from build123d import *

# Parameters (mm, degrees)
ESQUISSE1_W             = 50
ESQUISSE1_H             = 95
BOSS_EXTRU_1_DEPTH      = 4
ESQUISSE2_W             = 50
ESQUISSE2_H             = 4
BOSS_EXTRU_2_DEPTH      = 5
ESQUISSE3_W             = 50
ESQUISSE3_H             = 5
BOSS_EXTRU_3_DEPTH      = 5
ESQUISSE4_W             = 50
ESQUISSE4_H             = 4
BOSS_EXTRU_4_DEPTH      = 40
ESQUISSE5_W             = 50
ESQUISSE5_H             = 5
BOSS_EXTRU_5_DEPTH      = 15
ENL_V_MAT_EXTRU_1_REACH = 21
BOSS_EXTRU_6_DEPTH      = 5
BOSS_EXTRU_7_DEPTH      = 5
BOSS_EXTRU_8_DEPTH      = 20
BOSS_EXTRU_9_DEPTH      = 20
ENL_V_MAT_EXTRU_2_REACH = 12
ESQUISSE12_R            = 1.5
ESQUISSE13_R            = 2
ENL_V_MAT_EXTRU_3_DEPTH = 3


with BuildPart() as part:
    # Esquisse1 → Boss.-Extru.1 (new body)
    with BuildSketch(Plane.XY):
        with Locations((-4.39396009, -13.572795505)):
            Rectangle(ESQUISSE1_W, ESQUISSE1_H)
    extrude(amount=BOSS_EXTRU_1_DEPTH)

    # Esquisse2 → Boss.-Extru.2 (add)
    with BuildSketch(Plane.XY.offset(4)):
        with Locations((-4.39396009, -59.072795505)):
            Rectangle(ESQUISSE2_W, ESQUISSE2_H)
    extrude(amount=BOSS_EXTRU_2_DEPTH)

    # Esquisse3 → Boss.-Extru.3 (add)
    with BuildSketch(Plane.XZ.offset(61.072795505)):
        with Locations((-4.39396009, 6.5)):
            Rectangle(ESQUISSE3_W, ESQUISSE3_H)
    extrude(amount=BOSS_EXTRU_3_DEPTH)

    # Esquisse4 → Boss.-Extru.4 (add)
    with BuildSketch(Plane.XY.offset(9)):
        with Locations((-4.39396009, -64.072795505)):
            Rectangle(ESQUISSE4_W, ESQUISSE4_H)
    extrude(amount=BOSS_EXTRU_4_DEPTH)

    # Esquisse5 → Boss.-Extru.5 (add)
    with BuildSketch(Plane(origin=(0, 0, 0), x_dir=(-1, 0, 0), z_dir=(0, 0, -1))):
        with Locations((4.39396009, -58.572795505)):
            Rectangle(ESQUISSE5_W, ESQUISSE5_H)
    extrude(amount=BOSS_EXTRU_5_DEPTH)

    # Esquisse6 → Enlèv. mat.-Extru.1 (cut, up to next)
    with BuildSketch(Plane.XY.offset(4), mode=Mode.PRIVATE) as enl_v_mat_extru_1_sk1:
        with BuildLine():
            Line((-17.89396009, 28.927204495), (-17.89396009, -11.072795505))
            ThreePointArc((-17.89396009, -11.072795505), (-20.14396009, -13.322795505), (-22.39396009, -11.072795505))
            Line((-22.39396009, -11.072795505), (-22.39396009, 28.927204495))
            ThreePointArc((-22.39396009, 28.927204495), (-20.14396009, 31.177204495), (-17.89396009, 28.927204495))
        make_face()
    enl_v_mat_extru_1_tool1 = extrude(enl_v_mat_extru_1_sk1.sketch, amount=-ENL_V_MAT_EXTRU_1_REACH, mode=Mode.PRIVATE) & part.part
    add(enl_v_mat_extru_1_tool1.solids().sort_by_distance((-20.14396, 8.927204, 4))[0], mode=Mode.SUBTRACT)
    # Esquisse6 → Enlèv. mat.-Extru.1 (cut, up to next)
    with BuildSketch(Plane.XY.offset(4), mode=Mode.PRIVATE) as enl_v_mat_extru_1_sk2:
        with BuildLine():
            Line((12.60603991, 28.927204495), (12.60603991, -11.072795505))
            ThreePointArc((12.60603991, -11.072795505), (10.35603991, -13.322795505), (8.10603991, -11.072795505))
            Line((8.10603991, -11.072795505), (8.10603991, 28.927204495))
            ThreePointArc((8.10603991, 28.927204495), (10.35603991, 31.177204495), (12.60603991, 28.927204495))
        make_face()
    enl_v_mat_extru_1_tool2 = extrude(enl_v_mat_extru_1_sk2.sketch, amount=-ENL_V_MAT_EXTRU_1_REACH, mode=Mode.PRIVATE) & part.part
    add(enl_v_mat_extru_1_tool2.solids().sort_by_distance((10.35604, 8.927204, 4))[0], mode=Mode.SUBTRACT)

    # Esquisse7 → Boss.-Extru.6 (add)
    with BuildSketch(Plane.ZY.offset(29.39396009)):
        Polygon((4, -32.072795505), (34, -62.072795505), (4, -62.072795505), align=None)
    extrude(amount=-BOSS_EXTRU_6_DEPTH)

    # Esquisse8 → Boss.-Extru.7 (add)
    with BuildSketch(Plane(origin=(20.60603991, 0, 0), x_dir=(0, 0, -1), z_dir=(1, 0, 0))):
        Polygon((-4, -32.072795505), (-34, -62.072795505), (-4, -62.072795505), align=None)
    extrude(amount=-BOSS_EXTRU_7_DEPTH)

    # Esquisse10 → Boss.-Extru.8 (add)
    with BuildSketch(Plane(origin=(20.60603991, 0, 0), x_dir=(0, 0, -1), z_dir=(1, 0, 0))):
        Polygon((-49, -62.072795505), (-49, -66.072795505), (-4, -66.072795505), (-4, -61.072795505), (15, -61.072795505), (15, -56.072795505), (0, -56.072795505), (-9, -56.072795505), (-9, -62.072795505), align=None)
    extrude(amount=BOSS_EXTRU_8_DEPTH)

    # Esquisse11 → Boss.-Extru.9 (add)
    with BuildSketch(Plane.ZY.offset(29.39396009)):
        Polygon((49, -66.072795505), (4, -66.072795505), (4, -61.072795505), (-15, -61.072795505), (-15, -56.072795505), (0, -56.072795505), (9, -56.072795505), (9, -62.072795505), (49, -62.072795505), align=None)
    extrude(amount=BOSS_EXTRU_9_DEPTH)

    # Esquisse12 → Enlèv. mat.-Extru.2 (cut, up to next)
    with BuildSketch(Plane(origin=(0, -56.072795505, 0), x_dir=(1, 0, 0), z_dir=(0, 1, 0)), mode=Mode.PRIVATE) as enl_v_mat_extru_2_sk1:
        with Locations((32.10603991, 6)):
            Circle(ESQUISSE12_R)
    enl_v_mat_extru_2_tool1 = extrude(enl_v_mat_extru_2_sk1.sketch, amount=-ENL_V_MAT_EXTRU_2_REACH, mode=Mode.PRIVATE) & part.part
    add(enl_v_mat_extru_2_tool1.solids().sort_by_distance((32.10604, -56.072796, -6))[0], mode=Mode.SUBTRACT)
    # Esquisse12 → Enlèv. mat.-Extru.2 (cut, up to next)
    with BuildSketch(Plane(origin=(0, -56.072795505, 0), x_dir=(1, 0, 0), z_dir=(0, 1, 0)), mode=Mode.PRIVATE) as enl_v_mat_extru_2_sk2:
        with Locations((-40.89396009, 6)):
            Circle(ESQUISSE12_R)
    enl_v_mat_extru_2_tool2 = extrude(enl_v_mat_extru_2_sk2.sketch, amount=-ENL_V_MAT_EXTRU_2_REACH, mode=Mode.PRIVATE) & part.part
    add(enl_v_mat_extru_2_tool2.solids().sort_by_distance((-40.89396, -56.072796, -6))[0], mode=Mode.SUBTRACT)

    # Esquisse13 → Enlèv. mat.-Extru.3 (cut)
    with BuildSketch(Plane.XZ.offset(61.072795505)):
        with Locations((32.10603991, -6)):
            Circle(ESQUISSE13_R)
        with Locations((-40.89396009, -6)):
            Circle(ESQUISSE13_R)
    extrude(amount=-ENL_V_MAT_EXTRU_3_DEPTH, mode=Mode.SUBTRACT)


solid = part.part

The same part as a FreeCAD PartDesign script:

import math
import FreeCAD as App
import Part
import Sketcher
from FreeCAD import Vector


def add_polygon(sketch, points):
    """Adds a closed chain of lines whose ends are joined by coincident constraints."""
    first, n = sketch.GeometryCount, len(points)
    for a, b in zip(points, points[1:] + points[:1]):
        sketch.addGeometry(Part.LineSegment(App.Vector(*a, 0), App.Vector(*b, 0)), False)
    for i in range(n):
        sketch.addConstraint(Sketcher.Constraint("Coincident", first + i, 2, first + (i + 1) % n, 1))

doc = App.newDocument("Part")
body = doc.addObject("PartDesign::Body", "Body")

# Sketch on XY plane
sketch1 = body.newObject("Sketcher::SketchObject", "Sketch")
sketch1.AttachmentSupport = (doc.getObject("XY_Plane"), [""])
sketch1.MapMode = "FlatFace"
add_polygon(sketch1, [(-29, 34), (-29, -61), (21, -61), (21, 34)])  # lines 0-3
sketch1.addConstraint([
    Sketcher.Constraint("Vertical", 0),
    Sketcher.Constraint("Horizontal", 1),
    Sketcher.Constraint("Vertical", 2),
    Sketcher.Constraint("Horizontal", 3),
    Sketcher.Constraint("DistanceX", 1, 1, 1, 2, 50.0),
    Sketcher.Constraint("DistanceY", 0, 2, 0, 1, 95.0),
    Sketcher.Constraint("DistanceX", 0, 2, -1, 1, 29.39396),
    Sketcher.Constraint("DistanceY", 0, 2, -1, 1, 61.072796),
])
pad1 = body.newObject("PartDesign::Pad", "Pad")
pad1.Profile = sketch1
pad1.Length = 4

# Sketch on XY plane
sketch2 = body.newObject("Sketcher::SketchObject", "Sketch001")
sketch2.AttachmentSupport = (doc.getObject("XY_Plane"), [""])
sketch2.MapMode = "FlatFace"
sketch2.AttachmentOffset = App.Placement(Vector(0, 0, 4), App.Rotation())
add_polygon(sketch2, [(-29.4, -57.1), (-29.4, -61.1), (20.6, -61.1), (20.6, -57.1)])  # lines 0-3
sketch2.addConstraint([
    Sketcher.Constraint("Vertical", 0),
    Sketcher.Constraint("Horizontal", 1),
    Sketcher.Constraint("Vertical", 2),
    Sketcher.Constraint("Horizontal", 3),
    Sketcher.Constraint("DistanceX", 1, 1, 1, 2, 50.0),
    Sketcher.Constraint("DistanceY", 0, 2, 0, 1, 4.0),
    Sketcher.Constraint("DistanceX", 0, 2, -1, 1, 29.39396),
    Sketcher.Constraint("DistanceY", 0, 2, -1, 1, 61.072796),
])
pad2 = body.newObject("PartDesign::Pad", "Pad001")
pad2.Profile = sketch2
pad2.Length = 5

# Sketch on XZ plane
sketch3 = body.newObject("Sketcher::SketchObject", "Sketch002")
sketch3.AttachmentSupport = (doc.getObject("XZ_Plane"), [""])
sketch3.MapMode = "FlatFace"
sketch3.AttachmentOffset = App.Placement(Vector(0, 0, 61.072796), App.Rotation())
add_polygon(sketch3, [(-29, 9), (-29, 4), (21, 4), (21, 9)])  # lines 0-3
sketch3.addConstraint([
    Sketcher.Constraint("Vertical", 0),
    Sketcher.Constraint("Horizontal", 1),
    Sketcher.Constraint("Vertical", 2),
    Sketcher.Constraint("Horizontal", 3),
    Sketcher.Constraint("DistanceX", 1, 1, 1, 2, 50.0),
    Sketcher.Constraint("DistanceY", 0, 2, 0, 1, 5.0),
    Sketcher.Constraint("DistanceY", -1, 1, 0, 2, 4.0),
    Sketcher.Constraint("DistanceX", 0, 2, -1, 1, 29.39396),
])
pad3 = body.newObject("PartDesign::Pad", "Pad002")
pad3.Profile = sketch3
pad3.Length = 5

# Sketch on XY plane
sketch4 = body.newObject("Sketcher::SketchObject", "Sketch003")
sketch4.AttachmentSupport = (doc.getObject("XY_Plane"), [""])
sketch4.MapMode = "FlatFace"
sketch4.AttachmentOffset = App.Placement(Vector(0, 0, 9), App.Rotation())
add_polygon(sketch4, [(-29.4, -62.1), (-29.4, -66.1), (20.6, -66.1), (20.6, -62.1)])  # lines 0-3
sketch4.addConstraint([
    Sketcher.Constraint("Vertical", 0),
    Sketcher.Constraint("Horizontal", 1),
    Sketcher.Constraint("Vertical", 2),
    Sketcher.Constraint("Horizontal", 3),
    Sketcher.Constraint("DistanceX", 1, 1, 1, 2, 50.0),
    Sketcher.Constraint("DistanceY", 0, 2, 0, 1, 4.0),
    Sketcher.Constraint("DistanceX", 0, 2, -1, 1, 29.39396),
    Sketcher.Constraint("DistanceY", 0, 2, -1, 1, 66.072796),
])
pad4 = body.newObject("PartDesign::Pad", "Pad003")
pad4.Profile = sketch4
pad4.Length = 40

# Sketch on XY plane
sketch5 = body.newObject("Sketcher::SketchObject", "Sketch004")
sketch5.AttachmentSupport = (doc.getObject("XY_Plane"), [""])
sketch5.MapMode = "FlatFace"
add_polygon(sketch5, [(21, -56), (21, -61), (-29, -61), (-29, -56)])  # lines 0-3
sketch5.addConstraint([
    Sketcher.Constraint("Vertical", 0),
    Sketcher.Constraint("Horizontal", 1),
    Sketcher.Constraint("Vertical", 2),
    Sketcher.Constraint("Horizontal", 3),
    Sketcher.Constraint("DistanceX", 1, 2, 1, 1, 50.0),
    Sketcher.Constraint("DistanceY", 0, 2, 0, 1, 5.0),
    Sketcher.Constraint("DistanceX", -1, 1, 0, 2, 20.60604),
    Sketcher.Constraint("DistanceY", 0, 2, -1, 1, 61.072796),
])
pad5 = body.newObject("PartDesign::Pad", "Pad004")
pad5.Profile = sketch5
pad5.Length = 15
pad5.Reversed = True

# Sketch on XY plane
sketch6 = body.newObject("Sketcher::SketchObject", "Sketch005")
sketch6.AttachmentSupport = (doc.getObject("XY_Plane"), [""])
sketch6.MapMode = "FlatFace"
sketch6.AttachmentOffset = App.Placement(Vector(0, 0, 4), App.Rotation())
sketch6.addGeometry([
    Part.LineSegment(Vector(-17.9, -11.1, 0), Vector(-17.9, 28.9, 0)),
    Part.ArcOfCircle(Part.Circle(Vector(-20.1, 28.9, 0), Vector(0, 0, 1), 2.2), math.radians(0), math.radians(180)),
    Part.LineSegment(Vector(-22.4, 28.9, 0), Vector(-22.4, -11.1, 0)),
    Part.ArcOfCircle(Part.Circle(Vector(-20.1, -11.1, 0), Vector(0, 0, 1), 2.2), math.radians(180), math.radians(360)),
], False)
sketch6.addConstraint([
    Sketcher.Constraint("Tangent", 0, 2, 1, 1),
    Sketcher.Constraint("Tangent", 1, 2, 2, 1),
    Sketcher.Constraint("Tangent", 2, 2, 3, 1),
    Sketcher.Constraint("Tangent", 3, 2, 0, 1),
    Sketcher.Constraint("Vertical", 0),
    Sketcher.Constraint("Vertical", 2),
    Sketcher.Constraint("DistanceY", 0, 1, 0, 2, 40.0),
    Sketcher.Constraint("Radius", 1, 2.25),
    Sketcher.Constraint("DistanceX", 1, 3, -1, 1, 20.14396),
    Sketcher.Constraint("DistanceY", -1, 1, 1, 3, 28.927204),
])
pocket1 = body.newObject("PartDesign::Pocket", "Pocket")
pocket1.Profile = sketch6
pocket1.Type = "UpToFirst"

# Sketch on XY plane
sketch7 = body.newObject("Sketcher::SketchObject", "Sketch006")
sketch7.AttachmentSupport = (doc.getObject("XY_Plane"), [""])
sketch7.MapMode = "FlatFace"
sketch7.AttachmentOffset = App.Placement(Vector(0, 0, 4), App.Rotation())
sketch7.addGeometry([
    Part.LineSegment(Vector(12.6, -11.1, 0), Vector(12.6, 28.9, 0)),
    Part.ArcOfCircle(Part.Circle(Vector(10.4, 28.9, 0), Vector(0, 0, 1), 2.2), math.radians(0), math.radians(180)),
    Part.LineSegment(Vector(8.1, 28.9, 0), Vector(8.1, -11.1, 0)),
    Part.ArcOfCircle(Part.Circle(Vector(10.4, -11.1, 0), Vector(0, 0, 1), 2.2), math.radians(180), math.radians(360)),
], False)
sketch7.addConstraint([
    Sketcher.Constraint("Tangent", 0, 2, 1, 1),
    Sketcher.Constraint("Tangent", 1, 2, 2, 1),
    Sketcher.Constraint("Tangent", 2, 2, 3, 1),
    Sketcher.Constraint("Tangent", 3, 2, 0, 1),
    Sketcher.Constraint("Vertical", 0),
    Sketcher.Constraint("Vertical", 2),
    Sketcher.Constraint("DistanceY", 0, 1, 0, 2, 40.0),
    Sketcher.Constraint("Radius", 1, 2.25),
    Sketcher.Constraint("DistanceX", -1, 1, 1, 3, 10.35604),
    Sketcher.Constraint("DistanceY", -1, 1, 1, 3, 28.927204),
])
pocket2 = body.newObject("PartDesign::Pocket", "Pocket001")
pocket2.Profile = sketch7
pocket2.Type = "UpToFirst"

# Sketch on YZ plane
sketch8 = body.newObject("Sketcher::SketchObject", "Sketch007")
sketch8.AttachmentSupport = (doc.getObject("YZ_Plane"), [""])
sketch8.MapMode = "FlatFace"
sketch8.AttachmentOffset = App.Placement(Vector(0, 0, -29.39396), App.Rotation())
add_polygon(sketch8, [(-62, 34), (-32, 4), (-62, 4)])  # lines 0-2
sketch8.addConstraint([
    Sketcher.Constraint("Horizontal", 1),
    Sketcher.Constraint("Vertical", 2),
    Sketcher.Constraint("Equal", 1, 2),
    Sketcher.Constraint("DistanceX", 1, 2, 1, 1, 30.0),
    Sketcher.Constraint("DistanceY", -1, 1, 0, 2, 4.0),
    Sketcher.Constraint("DistanceX", 0, 2, -1, 1, 32.072796),
])
pad6 = body.newObject("PartDesign::Pad", "Pad005")
pad6.Profile = sketch8
pad6.Length = 5

# Sketch on YZ plane
sketch9 = body.newObject("Sketcher::SketchObject", "Sketch008")
sketch9.AttachmentSupport = (doc.getObject("YZ_Plane"), [""])
sketch9.MapMode = "FlatFace"
sketch9.AttachmentOffset = App.Placement(Vector(0, 0, 20.60604), App.Rotation())
add_polygon(sketch9, [(-32, 4), (-62, 34), (-62, 4)])  # lines 0-2
sketch9.addConstraint([
    Sketcher.Constraint("Vertical", 1),
    Sketcher.Constraint("Horizontal", 2),
    Sketcher.Constraint("Equal", 2, 1),
    Sketcher.Constraint("DistanceX", 2, 1, 2, 2, 30.0),
    Sketcher.Constraint("DistanceY", -1, 1, 0, 2, 34.0),
    Sketcher.Constraint("DistanceX", 0, 2, -1, 1, 62.072796),
])
pad7 = body.newObject("PartDesign::Pad", "Pad006")
pad7.Profile = sketch9
pad7.Length = 5
pad7.Reversed = True

# Sketch on YZ plane
sketch10 = body.newObject("Sketcher::SketchObject", "Sketch009")
sketch10.AttachmentSupport = (doc.getObject("YZ_Plane"), [""])
sketch10.MapMode = "FlatFace"
sketch10.AttachmentOffset = App.Placement(Vector(0, 0, 20.60604), App.Rotation())
add_polygon(sketch10, [(-62.1, 49), (-66.1, 49), (-66.1, 4), (-61.1, 4), (-61.1, -15), (-56.1, -15), (-56.1, 9), (-62.1, 9)])  # lines 0-7
sketch10.addConstraint([
    Sketcher.Constraint("Horizontal", 0),
    Sketcher.Constraint("Vertical", 1),
    Sketcher.Constraint("Horizontal", 2),
    Sketcher.Constraint("Vertical", 3),
    Sketcher.Constraint("Horizontal", 4),
    Sketcher.Constraint("Vertical", 5),
    Sketcher.Constraint("Horizontal", 6),
    Sketcher.Constraint("Vertical", 7),
    Sketcher.Constraint("Equal", 2, 4),
    Sketcher.Constraint("DistanceX", 0, 2, 0, 1, 4.0),
    Sketcher.Constraint("DistanceX", 2, 1, 2, 2, 5.0),
    Sketcher.Constraint("DistanceY", 1, 2, 1, 1, 45.0),
    Sketcher.Constraint("DistanceY", 3, 2, 3, 1, 19.0),
    Sketcher.Constraint("DistanceY", 5, 1, 5, 2, 24.0),
    Sketcher.Constraint("DistanceY", -1, 1, 0, 2, 49.0),
    Sketcher.Constraint("DistanceX", 0, 2, -1, 1, 66.072796),
])
pad8 = body.newObject("PartDesign::Pad", "Pad007")
pad8.Profile = sketch10
pad8.Length = 20

# Sketch on YZ plane
sketch11 = body.newObject("Sketcher::SketchObject", "Sketch010")
sketch11.AttachmentSupport = (doc.getObject("YZ_Plane"), [""])
sketch11.MapMode = "FlatFace"
sketch11.AttachmentOffset = App.Placement(Vector(0, 0, -29.39396), App.Rotation())
add_polygon(sketch11, [(-66.1, 4), (-66.1, 49), (-62.1, 49), (-62.1, 9), (-56.1, 9), (-56.1, -15), (-61.1, -15), (-61.1, 4)])  # lines 0-7
sketch11.addConstraint([
    Sketcher.Constraint("Vertical", 0),
    Sketcher.Constraint("Horizontal", 1),
    Sketcher.Constraint("Vertical", 2),
    Sketcher.Constraint("Horizontal", 3),
    Sketcher.Constraint("Vertical", 4),
    Sketcher.Constraint("Horizontal", 5),
    Sketcher.Constraint("Vertical", 6),
    Sketcher.Constraint("Horizontal", 7),
    Sketcher.Constraint("Equal", 5, 7),
    Sketcher.Constraint("DistanceX", 1, 1, 1, 2, 4.0),
    Sketcher.Constraint("DistanceX", 3, 1, 3, 2, 6.0),
    Sketcher.Constraint("DistanceY", 0, 1, 0, 2, 45.0),
    Sketcher.Constraint("DistanceY", 2, 2, 2, 1, 40.0),
    Sketcher.Constraint("DistanceY", 4, 2, 4, 1, 24.0),
    Sketcher.Constraint("DistanceY", -1, 1, 0, 2, 49.0),
    Sketcher.Constraint("DistanceX", 0, 2, -1, 1, 66.072796),
])
pad9 = body.newObject("PartDesign::Pad", "Pad008")
pad9.Profile = sketch11
pad9.Length = 20
pad9.Reversed = True

# Sketch on XZ plane
sketch12 = body.newObject("Sketcher::SketchObject", "Sketch011")
sketch12.AttachmentSupport = (doc.getObject("XZ_Plane"), [""])
sketch12.MapMode = "FlatFace"
sketch12.AttachmentOffset = App.Placement(Vector(0, 0, 56.072796), App.Rotation())
sketch12.addGeometry(Part.Circle(Vector(32.1, -6, 0), Vector(0, 0, 1), 1.5), False)
sketch12.addConstraint([
    Sketcher.Constraint("Diameter", 0, 3.0),
    Sketcher.Constraint("DistanceY", 0, 3, -1, 1, 6.0),
    Sketcher.Constraint("DistanceX", -1, 1, 0, 3, 32.10604),
])
pocket3 = body.newObject("PartDesign::Pocket", "Pocket002")
pocket3.Profile = sketch12
pocket3.Type = "UpToFirst"
pocket3.Reversed = True

# Sketch on XZ plane
sketch13 = body.newObject("Sketcher::SketchObject", "Sketch012")
sketch13.AttachmentSupport = (doc.getObject("XZ_Plane"), [""])
sketch13.MapMode = "FlatFace"
sketch13.AttachmentOffset = App.Placement(Vector(0, 0, 56.072796), App.Rotation())
sketch13.addGeometry(Part.Circle(Vector(-40.9, -6, 0), Vector(0, 0, 1), 1.5), False)
sketch13.addConstraint([
    Sketcher.Constraint("Diameter", 0, 3.0),
    Sketcher.Constraint("DistanceY", 0, 3, -1, 1, 6.0),
    Sketcher.Constraint("DistanceX", 0, 3, -1, 1, 40.89396),
])
pocket4 = body.newObject("PartDesign::Pocket", "Pocket003")
pocket4.Profile = sketch13
pocket4.Type = "UpToFirst"
pocket4.Reversed = True

# Sketch on XZ plane
sketch14 = body.newObject("Sketcher::SketchObject", "Sketch013")
sketch14.AttachmentSupport = (doc.getObject("XZ_Plane"), [""])
sketch14.MapMode = "FlatFace"
sketch14.AttachmentOffset = App.Placement(Vector(0, 0, 61.072796), App.Rotation())
sketch14.addGeometry([
    Part.Circle(Vector(32.1, -6, 0), Vector(0, 0, 1), 2),
    Part.Circle(Vector(-40.9, -6, 0), Vector(0, 0, 1), 2),
], False)
sketch14.addConstraint([
    Sketcher.Constraint("Equal", 0, 1),
    Sketcher.Constraint("Horizontal", 0, 3, 1, 3),
    Sketcher.Constraint("Diameter", 0, 4.0),
    Sketcher.Constraint("DistanceY", 0, 3, -1, 1, 6.0),
    Sketcher.Constraint("DistanceX", 1, 3, 0, 3, 73.0),
    Sketcher.Constraint("DistanceX", -1, 1, 0, 3, 32.10604),
])
pocket5 = body.newObject("PartDesign::Pocket", "Pocket004")
pocket5.Profile = sketch14
pocket5.Length = 3

doc.recompute()
